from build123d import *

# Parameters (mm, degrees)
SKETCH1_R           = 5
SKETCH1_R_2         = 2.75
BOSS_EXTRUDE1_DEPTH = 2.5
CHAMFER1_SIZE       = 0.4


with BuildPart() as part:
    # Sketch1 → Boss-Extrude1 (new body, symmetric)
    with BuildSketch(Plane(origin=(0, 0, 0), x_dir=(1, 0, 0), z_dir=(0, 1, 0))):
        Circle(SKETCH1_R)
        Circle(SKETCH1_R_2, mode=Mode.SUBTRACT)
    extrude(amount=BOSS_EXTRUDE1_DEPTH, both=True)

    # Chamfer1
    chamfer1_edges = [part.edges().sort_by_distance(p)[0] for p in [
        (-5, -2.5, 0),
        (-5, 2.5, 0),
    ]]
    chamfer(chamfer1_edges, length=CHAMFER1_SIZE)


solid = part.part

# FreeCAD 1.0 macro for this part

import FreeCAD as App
import Part
import Sketcher

V = App.Vector


def edges_at(feature, points):
    """Names of the edges that pass closest to the given points."""
    edges = feature.Shape.Edges
    near = lambda p: min(range(len(edges)), key=lambda i: edges[i].distToShape(Part.Vertex(*p))[0])
    return sorted({f"Edge{near(p) + 1}" for p in points})

doc = App.newDocument("Part")
params = doc.addObject("Spreadsheet::Sheet", "Params")
for row, (alias, value) in enumerate([
    ("sketch1_diameter", "10 mm"),
    ("sketch1_diameter2", "5.5 mm"),
    ("pad1_length", "5 mm"),
    ("chamfer_size", "0.4 mm"),
], start=1):
    params.set(f"A{row}", alias)
    params.set(f"B{row}", "=" + value)
    params.setAlias(f"B{row}", alias)

body = doc.addObject("PartDesign::Body", "Body")

# Sketch on XZ plane
sketch1 = body.newObject("Sketcher::SketchObject", "Sketch")
sketch1.AttachmentSupport = (doc.getObject("XZ_Plane"), [""])
sketch1.MapMode = "FlatFace"
sketch1.addGeometry(Part.Circle(V(0, 0, 0), V(0, 0, 1), 5), False)
sketch1.addGeometry(Part.Circle(V(0, 0, 0), V(0, 0, 1), 2.8), False)
sketch1.addConstraint(Sketcher.Constraint("Coincident", 0, 3, -1, 1))
sketch1.addConstraint(Sketcher.Constraint("Coincident", 1, 3, -1, 1))
sketch1.addConstraint(Sketcher.Constraint("Diameter", 0, 10.0))
sketch1.addConstraint(Sketcher.Constraint("Diameter", 1, 5.5))
sketch1.setExpression("Constraints[2]", "Params.sketch1_diameter")
sketch1.setExpression("Constraints[3]", "Params.sketch1_diameter2")
pad1 = body.newObject("PartDesign::Pad", "Pad")
pad1.Profile = sketch1
pad1.setExpression("Length", "Params.pad1_length")
pad1.Midplane = True
doc.recompute()

chamfer = body.newObject("PartDesign::Chamfer", "Chamfer")
chamfer.Base = (pad1, edges_at(pad1, [(-5, -2.5, 0), (-5, 2.5, 0)]))
chamfer.setExpression("Size", "Params.chamfer_size")

doc.recompute()
